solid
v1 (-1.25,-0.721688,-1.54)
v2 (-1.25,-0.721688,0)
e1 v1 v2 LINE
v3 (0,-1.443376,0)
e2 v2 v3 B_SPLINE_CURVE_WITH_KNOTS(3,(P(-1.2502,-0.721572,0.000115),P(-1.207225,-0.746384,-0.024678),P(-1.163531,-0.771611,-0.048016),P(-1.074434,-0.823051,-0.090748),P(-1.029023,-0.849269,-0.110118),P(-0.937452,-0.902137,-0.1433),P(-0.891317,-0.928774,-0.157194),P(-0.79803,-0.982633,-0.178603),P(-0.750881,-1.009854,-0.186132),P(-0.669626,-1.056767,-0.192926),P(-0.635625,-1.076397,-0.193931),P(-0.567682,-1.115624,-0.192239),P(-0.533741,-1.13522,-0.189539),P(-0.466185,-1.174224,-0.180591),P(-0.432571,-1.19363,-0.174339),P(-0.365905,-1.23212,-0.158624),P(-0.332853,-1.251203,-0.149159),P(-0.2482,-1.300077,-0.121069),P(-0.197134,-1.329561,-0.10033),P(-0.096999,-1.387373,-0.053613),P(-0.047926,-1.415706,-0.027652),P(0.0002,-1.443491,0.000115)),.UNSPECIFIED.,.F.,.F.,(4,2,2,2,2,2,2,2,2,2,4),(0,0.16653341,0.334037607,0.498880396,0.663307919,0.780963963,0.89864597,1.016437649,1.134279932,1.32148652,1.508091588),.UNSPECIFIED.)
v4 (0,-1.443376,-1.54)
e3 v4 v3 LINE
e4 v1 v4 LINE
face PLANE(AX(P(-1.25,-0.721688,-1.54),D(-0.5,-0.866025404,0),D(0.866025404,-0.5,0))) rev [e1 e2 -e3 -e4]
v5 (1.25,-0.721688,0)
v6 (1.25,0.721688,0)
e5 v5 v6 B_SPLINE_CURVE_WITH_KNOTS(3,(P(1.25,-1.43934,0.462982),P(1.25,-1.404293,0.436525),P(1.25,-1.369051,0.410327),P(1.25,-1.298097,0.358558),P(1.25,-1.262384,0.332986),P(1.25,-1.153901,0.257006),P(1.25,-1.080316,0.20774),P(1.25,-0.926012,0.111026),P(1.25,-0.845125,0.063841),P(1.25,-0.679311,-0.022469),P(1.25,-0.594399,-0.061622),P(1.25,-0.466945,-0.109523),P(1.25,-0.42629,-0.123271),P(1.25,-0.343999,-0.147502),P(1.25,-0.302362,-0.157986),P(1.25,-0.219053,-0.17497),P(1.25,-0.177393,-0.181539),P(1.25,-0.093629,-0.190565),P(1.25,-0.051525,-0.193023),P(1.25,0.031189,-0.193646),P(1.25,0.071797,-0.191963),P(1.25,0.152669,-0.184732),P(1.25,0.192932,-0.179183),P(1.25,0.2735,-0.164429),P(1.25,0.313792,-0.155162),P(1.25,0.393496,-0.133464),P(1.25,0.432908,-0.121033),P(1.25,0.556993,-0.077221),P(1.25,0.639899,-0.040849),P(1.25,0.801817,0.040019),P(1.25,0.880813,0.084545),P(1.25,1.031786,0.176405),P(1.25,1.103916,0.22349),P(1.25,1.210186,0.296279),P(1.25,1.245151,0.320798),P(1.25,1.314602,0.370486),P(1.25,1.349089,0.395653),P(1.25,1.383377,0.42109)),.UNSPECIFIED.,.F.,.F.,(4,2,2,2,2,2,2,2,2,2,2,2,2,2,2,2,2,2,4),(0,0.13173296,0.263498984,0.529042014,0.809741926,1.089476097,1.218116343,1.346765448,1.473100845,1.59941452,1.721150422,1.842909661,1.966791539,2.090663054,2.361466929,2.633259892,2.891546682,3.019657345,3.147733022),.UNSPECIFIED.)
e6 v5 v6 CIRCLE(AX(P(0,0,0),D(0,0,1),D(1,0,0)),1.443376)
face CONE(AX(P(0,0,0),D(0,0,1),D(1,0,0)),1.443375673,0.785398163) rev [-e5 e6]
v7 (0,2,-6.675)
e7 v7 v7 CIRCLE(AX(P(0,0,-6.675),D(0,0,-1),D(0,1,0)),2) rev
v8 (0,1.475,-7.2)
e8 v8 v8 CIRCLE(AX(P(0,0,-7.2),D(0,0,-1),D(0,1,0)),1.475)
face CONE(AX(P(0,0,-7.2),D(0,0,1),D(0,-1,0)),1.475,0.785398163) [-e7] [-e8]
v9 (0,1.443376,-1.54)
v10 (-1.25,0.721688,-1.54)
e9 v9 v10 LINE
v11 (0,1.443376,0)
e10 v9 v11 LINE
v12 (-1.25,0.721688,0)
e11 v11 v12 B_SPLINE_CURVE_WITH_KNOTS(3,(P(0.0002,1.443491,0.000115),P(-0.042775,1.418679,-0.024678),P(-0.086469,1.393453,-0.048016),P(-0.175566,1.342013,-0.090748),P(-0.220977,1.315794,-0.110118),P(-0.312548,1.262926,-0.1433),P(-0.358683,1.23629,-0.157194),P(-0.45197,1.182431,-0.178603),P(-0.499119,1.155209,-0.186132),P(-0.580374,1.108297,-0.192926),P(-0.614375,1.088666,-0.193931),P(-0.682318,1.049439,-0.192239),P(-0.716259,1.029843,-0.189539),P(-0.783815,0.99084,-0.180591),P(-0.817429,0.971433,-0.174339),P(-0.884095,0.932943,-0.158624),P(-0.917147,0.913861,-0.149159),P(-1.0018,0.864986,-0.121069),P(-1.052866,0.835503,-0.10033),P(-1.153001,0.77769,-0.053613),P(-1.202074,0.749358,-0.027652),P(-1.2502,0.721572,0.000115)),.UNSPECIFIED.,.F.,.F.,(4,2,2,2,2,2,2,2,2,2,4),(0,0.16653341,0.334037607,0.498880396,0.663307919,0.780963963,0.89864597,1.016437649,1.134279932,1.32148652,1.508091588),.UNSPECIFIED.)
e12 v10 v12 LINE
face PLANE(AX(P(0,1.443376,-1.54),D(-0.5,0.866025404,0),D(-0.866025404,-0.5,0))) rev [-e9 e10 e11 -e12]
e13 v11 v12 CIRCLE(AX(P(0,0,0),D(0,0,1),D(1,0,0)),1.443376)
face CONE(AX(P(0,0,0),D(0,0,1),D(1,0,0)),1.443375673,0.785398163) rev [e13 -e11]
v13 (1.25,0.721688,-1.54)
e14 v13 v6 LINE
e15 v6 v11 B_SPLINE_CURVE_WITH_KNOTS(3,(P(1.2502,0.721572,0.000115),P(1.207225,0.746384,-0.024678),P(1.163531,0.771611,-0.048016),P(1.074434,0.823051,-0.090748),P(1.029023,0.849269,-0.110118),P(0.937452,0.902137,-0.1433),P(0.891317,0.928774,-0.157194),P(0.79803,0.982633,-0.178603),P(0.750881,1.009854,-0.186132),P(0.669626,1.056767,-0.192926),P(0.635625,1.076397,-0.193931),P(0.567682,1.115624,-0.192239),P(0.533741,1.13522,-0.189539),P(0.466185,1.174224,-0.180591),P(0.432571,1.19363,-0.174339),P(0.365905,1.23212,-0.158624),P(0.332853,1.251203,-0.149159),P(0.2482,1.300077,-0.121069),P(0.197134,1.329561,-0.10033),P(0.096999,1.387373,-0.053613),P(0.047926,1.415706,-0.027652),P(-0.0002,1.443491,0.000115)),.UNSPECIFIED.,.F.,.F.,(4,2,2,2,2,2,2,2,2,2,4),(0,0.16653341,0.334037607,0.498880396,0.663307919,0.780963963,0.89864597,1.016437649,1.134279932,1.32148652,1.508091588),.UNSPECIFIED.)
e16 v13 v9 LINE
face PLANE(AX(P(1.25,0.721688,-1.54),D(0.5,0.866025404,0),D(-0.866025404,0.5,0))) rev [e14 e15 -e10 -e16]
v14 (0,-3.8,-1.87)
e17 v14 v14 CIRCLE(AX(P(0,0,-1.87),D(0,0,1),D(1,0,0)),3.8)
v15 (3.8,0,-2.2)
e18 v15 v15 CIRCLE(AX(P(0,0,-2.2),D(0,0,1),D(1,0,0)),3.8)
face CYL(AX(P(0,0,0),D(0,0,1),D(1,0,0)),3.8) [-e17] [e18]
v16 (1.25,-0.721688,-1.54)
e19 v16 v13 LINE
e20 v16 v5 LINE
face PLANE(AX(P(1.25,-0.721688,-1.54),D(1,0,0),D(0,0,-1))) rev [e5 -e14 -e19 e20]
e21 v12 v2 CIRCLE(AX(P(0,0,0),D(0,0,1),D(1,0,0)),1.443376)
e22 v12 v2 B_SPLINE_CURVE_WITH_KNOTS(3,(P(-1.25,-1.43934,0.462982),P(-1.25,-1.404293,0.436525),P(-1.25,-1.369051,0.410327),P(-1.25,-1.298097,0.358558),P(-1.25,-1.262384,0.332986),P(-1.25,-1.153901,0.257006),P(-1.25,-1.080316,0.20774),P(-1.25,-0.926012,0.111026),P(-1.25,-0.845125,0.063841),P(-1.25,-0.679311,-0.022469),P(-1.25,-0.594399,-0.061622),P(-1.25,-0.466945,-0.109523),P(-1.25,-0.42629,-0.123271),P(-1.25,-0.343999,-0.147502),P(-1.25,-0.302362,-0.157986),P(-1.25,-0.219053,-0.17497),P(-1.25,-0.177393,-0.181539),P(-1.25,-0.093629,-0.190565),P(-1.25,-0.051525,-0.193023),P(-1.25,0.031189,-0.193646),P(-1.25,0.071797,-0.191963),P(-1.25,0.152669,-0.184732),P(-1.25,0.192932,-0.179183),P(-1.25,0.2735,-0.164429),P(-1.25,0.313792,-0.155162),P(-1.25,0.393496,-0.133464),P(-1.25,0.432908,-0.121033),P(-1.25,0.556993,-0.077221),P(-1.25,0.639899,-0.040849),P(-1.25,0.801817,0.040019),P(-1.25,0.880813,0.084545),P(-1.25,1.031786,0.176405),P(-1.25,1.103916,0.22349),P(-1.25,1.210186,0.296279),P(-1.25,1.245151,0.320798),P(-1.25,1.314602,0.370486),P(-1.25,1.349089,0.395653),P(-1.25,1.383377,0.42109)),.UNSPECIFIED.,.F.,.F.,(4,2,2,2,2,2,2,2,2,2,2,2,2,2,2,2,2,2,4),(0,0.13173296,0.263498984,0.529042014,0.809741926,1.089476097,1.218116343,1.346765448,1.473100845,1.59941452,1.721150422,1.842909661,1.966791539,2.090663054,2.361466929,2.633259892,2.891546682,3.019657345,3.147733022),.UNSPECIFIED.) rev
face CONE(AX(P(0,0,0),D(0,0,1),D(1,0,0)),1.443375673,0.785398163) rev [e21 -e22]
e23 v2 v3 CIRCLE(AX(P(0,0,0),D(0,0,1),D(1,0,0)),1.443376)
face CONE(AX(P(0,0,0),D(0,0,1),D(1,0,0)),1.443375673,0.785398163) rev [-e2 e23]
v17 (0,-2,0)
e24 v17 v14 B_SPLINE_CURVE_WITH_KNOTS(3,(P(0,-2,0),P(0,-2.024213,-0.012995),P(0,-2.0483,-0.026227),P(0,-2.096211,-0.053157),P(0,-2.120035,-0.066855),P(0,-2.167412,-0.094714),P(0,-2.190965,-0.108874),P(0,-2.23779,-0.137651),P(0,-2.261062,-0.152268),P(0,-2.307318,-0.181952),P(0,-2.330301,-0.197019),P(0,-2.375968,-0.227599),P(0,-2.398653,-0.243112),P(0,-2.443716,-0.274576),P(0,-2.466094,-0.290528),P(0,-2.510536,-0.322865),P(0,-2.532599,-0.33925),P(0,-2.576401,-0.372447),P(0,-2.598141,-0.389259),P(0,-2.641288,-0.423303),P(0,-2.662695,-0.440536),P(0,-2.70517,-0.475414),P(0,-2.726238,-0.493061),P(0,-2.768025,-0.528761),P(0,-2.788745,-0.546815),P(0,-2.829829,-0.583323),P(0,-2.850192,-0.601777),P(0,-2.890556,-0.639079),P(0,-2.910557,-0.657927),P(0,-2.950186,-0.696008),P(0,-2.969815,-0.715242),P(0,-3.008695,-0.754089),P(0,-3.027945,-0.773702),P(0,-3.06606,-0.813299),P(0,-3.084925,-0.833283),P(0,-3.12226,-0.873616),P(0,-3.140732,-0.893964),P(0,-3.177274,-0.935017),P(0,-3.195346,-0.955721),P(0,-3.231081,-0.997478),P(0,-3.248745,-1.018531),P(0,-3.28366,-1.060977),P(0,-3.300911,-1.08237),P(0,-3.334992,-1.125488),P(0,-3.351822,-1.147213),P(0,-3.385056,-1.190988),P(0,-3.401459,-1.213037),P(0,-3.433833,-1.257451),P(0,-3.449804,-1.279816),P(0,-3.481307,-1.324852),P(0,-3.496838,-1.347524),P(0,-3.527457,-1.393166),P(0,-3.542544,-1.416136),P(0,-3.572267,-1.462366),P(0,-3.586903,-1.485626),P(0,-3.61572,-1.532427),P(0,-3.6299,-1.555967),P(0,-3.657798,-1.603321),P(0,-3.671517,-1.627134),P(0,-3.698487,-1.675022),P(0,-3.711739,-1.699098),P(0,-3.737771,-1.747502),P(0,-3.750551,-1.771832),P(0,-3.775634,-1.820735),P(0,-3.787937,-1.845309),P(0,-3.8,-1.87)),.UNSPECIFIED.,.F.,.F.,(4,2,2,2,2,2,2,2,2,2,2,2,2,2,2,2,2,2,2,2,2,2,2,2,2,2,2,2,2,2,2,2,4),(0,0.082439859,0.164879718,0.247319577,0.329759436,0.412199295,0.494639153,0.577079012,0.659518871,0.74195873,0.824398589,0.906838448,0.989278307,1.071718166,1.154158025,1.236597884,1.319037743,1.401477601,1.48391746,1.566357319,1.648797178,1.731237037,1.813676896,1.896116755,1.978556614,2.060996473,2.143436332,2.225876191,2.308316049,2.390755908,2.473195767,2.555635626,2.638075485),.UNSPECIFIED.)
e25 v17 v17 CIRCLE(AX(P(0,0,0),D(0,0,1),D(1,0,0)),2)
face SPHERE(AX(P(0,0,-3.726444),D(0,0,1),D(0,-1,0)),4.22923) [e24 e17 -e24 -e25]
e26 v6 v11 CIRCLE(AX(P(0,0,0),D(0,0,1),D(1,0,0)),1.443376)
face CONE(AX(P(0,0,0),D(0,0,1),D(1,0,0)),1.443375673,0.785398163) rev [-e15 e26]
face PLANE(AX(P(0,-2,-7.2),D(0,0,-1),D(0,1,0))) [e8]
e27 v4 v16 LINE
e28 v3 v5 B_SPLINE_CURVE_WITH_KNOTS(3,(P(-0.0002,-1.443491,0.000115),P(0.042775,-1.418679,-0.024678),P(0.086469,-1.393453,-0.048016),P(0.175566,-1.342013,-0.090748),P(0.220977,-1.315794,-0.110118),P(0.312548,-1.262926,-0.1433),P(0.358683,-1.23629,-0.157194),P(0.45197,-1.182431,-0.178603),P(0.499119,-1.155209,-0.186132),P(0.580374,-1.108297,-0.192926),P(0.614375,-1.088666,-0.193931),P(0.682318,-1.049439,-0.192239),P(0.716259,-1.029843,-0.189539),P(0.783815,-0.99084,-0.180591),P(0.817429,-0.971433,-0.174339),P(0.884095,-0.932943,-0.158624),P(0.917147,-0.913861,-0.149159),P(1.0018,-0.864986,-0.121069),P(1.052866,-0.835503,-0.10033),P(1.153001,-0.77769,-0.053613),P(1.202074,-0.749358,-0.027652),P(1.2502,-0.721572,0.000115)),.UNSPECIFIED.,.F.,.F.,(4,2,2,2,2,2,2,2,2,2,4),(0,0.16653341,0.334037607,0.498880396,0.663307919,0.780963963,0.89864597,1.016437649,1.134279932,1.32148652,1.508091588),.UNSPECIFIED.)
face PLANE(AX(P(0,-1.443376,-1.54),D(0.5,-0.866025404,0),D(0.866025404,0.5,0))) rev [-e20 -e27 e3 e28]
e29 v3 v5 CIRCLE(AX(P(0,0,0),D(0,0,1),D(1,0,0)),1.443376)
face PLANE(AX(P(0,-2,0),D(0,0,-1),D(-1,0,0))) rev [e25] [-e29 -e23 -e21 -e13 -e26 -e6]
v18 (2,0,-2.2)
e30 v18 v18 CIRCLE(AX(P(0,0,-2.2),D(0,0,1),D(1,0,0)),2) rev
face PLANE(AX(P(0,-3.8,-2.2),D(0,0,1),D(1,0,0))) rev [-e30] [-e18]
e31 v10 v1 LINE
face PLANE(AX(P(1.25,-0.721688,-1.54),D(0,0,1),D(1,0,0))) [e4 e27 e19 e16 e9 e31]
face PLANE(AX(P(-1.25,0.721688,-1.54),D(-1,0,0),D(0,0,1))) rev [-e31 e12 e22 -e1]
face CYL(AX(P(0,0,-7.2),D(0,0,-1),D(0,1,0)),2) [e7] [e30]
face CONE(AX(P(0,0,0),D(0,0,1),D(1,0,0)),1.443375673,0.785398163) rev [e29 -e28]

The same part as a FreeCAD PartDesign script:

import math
import FreeCAD as App
import Part
import Sketcher

V = App.Vector
Q = App.Units.Quantity


def edges_at(feature, points):
    """Names of the edges that pass closest to the given points."""
    edges = feature.Shape.Edges
    near = lambda p: min(range(len(edges)), key=lambda i: edges[i].distToShape(Part.Vertex(*p))[0])
    return sorted({f"Edge{near(p) + 1}" for p in points})


def add_polygon(sketch, points):
    """Adds a closed chain of lines whose ends are joined by coincident constraints."""
    first, n = sketch.GeometryCount, len(points)
    for a, b in zip(points, points[1:] + points[:1]):
        sketch.addGeometry(Part.LineSegment(App.Vector(*a, 0), App.Vector(*b, 0)), False)
    for i in range(n):
        sketch.addConstraint(Sketcher.Constraint("Coincident", first + i, 2, first + (i + 1) % n, 1))

doc = App.newDocument("Part")
params = doc.addObject("Spreadsheet::Sheet", "Params")
for row, (alias, value) in enumerate([
    ("sketch1_width", "2 mm"),
    ("sketch1_height", "5 mm"),
    ("revolution_angle", "360 deg"),
    ("chamfer_size", "0.525 mm"),
    ("sketch2_width", "2 mm"),
    ("sketch2_width2", "3.8 mm"),
    ("sketch2_height", "2.2 mm"),
    ("sketch2_height2", "0.33 mm"),
    ("revolution2_angle", "360 deg"),
    ("pocket1_length", "1.54 mm"),
    ("groove_angle", "360 deg"),
], start=1):
    params.set(f"A{row}", alias)
    params.set(f"B{row}", "=" + value)
    params.setAlias(f"B{row}", alias)

body = doc.addObject("PartDesign::Body", "Body")

sketch1 = body.newObject("Sketcher::SketchObject", "Sketch")
sketch1.AttachmentSupport = (doc.getObject("YZ_Plane"), [""])
sketch1.MapMode = "FlatFace"
add_polygon(sketch1, [(2, -2.2), (0, -2.2), (0, -7.2), (2, -7.2)])
sketch1.addConstraint([
    Sketcher.Constraint("Horizontal", 0),
    Sketcher.Constraint("Vertical", 1),
    Sketcher.Constraint("Horizontal", 2),
    Sketcher.Constraint("Vertical", 3),
    Sketcher.Constraint("PointOnObject", 0, 2, -2),
    Sketcher.Constraint("DistanceX", 0, 2, 0, 1, Q("2 mm")),
    Sketcher.Constraint("DistanceY", 1, 2, 1, 1, Q("5 mm")),
    Sketcher.Constraint("DistanceY", 0, 2, -1, 1, Q("2.2 mm")),
])
sketch1.setExpression("Constraints[9]", "Params.sketch1_width")
sketch1.setExpression("Constraints[10]", "Params.sketch1_height")
revolution = body.newObject("PartDesign::Revolution", "Revolution")
revolution.Profile = sketch1
revolution.ReferenceAxis = (sketch1, ["V_Axis"])
revolution.setExpression("Angle", "Params.revolution_angle")
doc.recompute()

chamfer = body.newObject("PartDesign::Chamfer", "Chamfer")
chamfer.Base = (revolution, edges_at(revolution, [(0, -2, -7.2)]))
chamfer.setExpression("Size", "Params.chamfer_size")

sketch2 = body.newObject("Sketcher::SketchObject", "Sketch001")
sketch2.AttachmentSupport = (doc.getObject("YZ_Plane"), [""])
sketch2.MapMode = "FlatFace"
sketch2.addGeometry([
    Part.LineSegment(V(3.8, -2.2, 0), V(3.8, -1.87, 0)),
    Part.ArcOfCircle(Part.Circle(V(0, -3.73, 0), V(0, 0, 1), 4.23), math.radians(26), math.radians(62)),
    Part.LineSegment(V(2, 0, 0), V(0, 0, 0)),
    Part.LineSegment(V(0, 0, 0), V(0, -2.2, 0)),
    Part.LineSegment(V(0, -2.2, 0), V(3.8, -2.2, 0)),
], False)
sketch2.addConstraint([
    Sketcher.Constraint("Coincident", 0, 2, 1, 1),
    Sketcher.Constraint("Coincident", 1, 2, 2, 1),
    Sketcher.Constraint("Coincident", 2, 2, 3, 1),
    Sketcher.Constraint("Coincident", 3, 2, 4, 1),
    Sketcher.Constraint("Coincident", 4, 2, 0, 1),
    Sketcher.Constraint("Vertical", 0),
    Sketcher.Constraint("Horizontal", 2),
    Sketcher.Constraint("Vertical", 3),
    Sketcher.Constraint("Horizontal", 4),
    Sketcher.Constraint("Coincident", 2, 2, -1, 1),
    Sketcher.Constraint("PointOnObject", 1, 3, -2),
    Sketcher.Constraint("DistanceX", 2, 2, 2, 1, Q("2 mm")),
    Sketcher.Constraint("DistanceX", 4, 1, 4, 2, Q("3.8 mm")),
    Sketcher.Constraint("DistanceY", 3, 2, 3, 1, Q("2.2 mm")),
    Sketcher.Constraint("DistanceY", 0, 1, 0, 2, Q("0.33 mm")),
])
sketch2.setExpression("Constraints[11]", "Params.sketch2_width")
sketch2.setExpression("Constraints[12]", "Params.sketch2_width2")
sketch2.setExpression("Constraints[13]", "Params.sketch2_height")
sketch2.setExpression("Constraints[14]", "Params.sketch2_height2")
revolution2 = body.newObject("PartDesign::Revolution", "Revolution001")
revolution2.Profile = sketch2
revolution2.ReferenceAxis = (sketch2, ["V_Axis"])
revolution2.setExpression("Angle", "Params.revolution2_angle")

sketch3 = body.newObject("Sketcher::SketchObject", "Sketch002")
sketch3.AttachmentSupport = (doc.getObject("XY_Plane"), [""])
sketch3.MapMode = "FlatFace"
add_polygon(sketch3, [(1.2, -0.7), (1.2, 0.7), (0, 1.4), (-1.2, 0.7), (-1.2, -0.7), (0, -1.4)])
sketch3.addConstraint([
    Sketcher.Constraint("Vertical", 0),
    Sketcher.Constraint("Vertical", 3),
    Sketcher.Constraint("Symmetric", 0, 2, 3, 2, -1, 1),
    Sketcher.Constraint("Symmetric", 1, 2, 4, 2, -1, 1),
    Sketcher.Constraint("PointOnObject", 1, 2, -2),
    Sketcher.Constraint("Parallel", 2, 5),
    Sketcher.Constraint("Horizontal", 0, 2, 2, 2),
    Sketcher.Constraint("Angle", 1, Q("150 deg")),
    Sketcher.Constraint("DistanceX", 2, 2, 0, 2, Q("2.5 mm")),
    Sketcher.Constraint("DistanceY", 0, 1, 0, 2, Q("1.443376 mm")),
])
pocket1 = body.newObject("PartDesign::Pocket", "Pocket")
pocket1.Profile = sketch3
pocket1.setExpression("Length", "Params.pocket1_length")

sketch4 = body.newObject("Sketcher::SketchObject", "Sketch003")
sketch4.AttachmentSupport = (doc.getObject("YZ_Plane"), [""])
sketch4.MapMode = "FlatFace"
add_polygon(sketch4, [(0, 0), (-1.4, 0), (0, -1.4)])
sketch4.addConstraint([
    Sketcher.Constraint("Horizontal", 0),
    Sketcher.Constraint("Vertical", 2),
    Sketcher.Constraint("Coincident", 2, 2, -1, 1),
    Sketcher.Constraint("Equal", 0, 2),
    Sketcher.Constraint("Distance", 1, Q("2.041241 mm")),
])
groove = body.newObject("PartDesign::Groove", "Groove")
groove.Profile = sketch4
groove.ReferenceAxis = (sketch4, ["V_Axis"])
groove.setExpression("Angle", "Params.groove_angle")

doc.recompute()
